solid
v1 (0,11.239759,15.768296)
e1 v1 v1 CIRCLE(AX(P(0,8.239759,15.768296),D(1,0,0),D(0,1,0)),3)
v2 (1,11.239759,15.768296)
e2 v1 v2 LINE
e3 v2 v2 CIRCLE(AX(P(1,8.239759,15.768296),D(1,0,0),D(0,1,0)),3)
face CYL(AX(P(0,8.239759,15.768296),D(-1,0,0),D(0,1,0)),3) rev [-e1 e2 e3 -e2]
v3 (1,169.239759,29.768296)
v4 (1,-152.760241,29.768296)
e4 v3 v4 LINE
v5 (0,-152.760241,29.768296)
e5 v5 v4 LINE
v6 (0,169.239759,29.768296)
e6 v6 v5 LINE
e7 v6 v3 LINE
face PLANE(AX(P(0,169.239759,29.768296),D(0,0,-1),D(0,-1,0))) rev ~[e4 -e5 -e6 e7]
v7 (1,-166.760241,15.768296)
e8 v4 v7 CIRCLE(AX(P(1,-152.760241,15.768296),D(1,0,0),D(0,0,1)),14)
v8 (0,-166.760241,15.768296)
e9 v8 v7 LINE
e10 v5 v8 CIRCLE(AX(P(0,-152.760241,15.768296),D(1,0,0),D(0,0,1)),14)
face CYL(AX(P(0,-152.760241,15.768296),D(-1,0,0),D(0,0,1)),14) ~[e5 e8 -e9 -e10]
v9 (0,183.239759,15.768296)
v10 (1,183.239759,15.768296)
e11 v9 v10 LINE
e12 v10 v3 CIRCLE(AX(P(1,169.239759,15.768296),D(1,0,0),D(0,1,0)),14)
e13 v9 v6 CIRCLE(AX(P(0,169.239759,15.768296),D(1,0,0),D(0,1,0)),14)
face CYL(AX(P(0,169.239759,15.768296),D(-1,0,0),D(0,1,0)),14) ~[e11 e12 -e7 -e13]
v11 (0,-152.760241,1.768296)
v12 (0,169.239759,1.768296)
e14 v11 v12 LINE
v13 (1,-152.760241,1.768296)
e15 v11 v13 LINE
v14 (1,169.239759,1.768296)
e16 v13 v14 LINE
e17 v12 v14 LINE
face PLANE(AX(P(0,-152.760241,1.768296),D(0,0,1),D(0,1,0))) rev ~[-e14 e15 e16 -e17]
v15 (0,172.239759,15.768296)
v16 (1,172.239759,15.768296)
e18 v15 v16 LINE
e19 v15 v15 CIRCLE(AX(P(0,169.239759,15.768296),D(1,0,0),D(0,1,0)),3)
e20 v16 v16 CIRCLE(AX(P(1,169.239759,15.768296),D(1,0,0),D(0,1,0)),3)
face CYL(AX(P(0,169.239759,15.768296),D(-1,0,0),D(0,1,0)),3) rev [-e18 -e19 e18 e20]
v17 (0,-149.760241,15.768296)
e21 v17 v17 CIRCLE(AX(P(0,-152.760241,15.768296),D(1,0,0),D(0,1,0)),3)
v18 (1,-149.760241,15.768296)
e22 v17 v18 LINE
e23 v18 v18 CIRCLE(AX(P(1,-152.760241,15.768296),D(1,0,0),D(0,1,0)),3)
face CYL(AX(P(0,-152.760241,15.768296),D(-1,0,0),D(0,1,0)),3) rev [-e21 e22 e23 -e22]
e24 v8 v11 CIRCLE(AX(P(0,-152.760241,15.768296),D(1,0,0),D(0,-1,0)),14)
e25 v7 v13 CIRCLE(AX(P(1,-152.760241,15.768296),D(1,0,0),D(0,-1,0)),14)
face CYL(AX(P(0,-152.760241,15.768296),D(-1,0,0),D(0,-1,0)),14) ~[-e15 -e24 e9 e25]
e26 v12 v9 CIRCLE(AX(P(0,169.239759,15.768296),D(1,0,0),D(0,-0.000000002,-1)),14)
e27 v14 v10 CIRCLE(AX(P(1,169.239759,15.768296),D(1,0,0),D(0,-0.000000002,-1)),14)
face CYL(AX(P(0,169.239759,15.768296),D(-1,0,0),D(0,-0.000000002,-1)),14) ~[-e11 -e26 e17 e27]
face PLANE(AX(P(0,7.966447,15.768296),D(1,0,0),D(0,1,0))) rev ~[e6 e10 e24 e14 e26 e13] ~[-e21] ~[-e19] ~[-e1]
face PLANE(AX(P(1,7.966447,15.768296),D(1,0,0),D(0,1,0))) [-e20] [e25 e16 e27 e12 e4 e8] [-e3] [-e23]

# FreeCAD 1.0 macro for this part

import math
import FreeCAD as App
import Part
import Sketcher

V = App.Vector
Q = App.Units.Quantity

doc = App.newDocument("Part")
body = doc.addObject("PartDesign::Body", "Body")

# Sketch on YZ plane
sketch1 = doc.addObject("Sketcher::SketchObject", "Sketch")
body.addObject(sketch1)
sketch1.AttachmentSupport = (doc.YZ_Plane, [""])
sketch1.MapMode = "FlatFace"
sketch1.addGeometry([
    Part.LineSegment(V(169.2, 29.8, 0), V(-152.8, 29.8, 0)),  # 0
    Part.ArcOfCircle(Part.Circle(V(-152.8, 15.8, 0), V(0, 0, 1), 14), math.radians(90), math.radians(180)),  # 1
    Part.ArcOfCircle(Part.Circle(V(-152.8, 15.8, 0), V(0, 0, 1), 14), math.radians(180), math.radians(270)),  # 2
    Part.LineSegment(V(-152.8, 1.8, 0), V(169.2, 1.8, 0)),  # 3
    Part.ArcOfCircle(Part.Circle(V(169.2, 15.8, 0), V(0, 0, 1), 14), math.radians(-90), math.radians(0)),  # 4
    Part.ArcOfCircle(Part.Circle(V(169.2, 15.8, 0), V(0, 0, 1), 14), math.radians(0), math.radians(90)),  # 5
    Part.Circle(V(-152.8, 15.8, 0), V(0, 0, 1), 3),  # 6
    Part.Circle(V(8.2, 15.8, 0), V(0, 0, 1), 3),  # 7
    Part.Circle(V(169.2, 15.8, 0), V(0, 0, 1), 3),  # 8
], False)
sketch1.addConstraint([
    Sketcher.Constraint("Tangent", 0, 2, 1, 1),
    Sketcher.Constraint("Tangent", 1, 2, 2, 1),
    Sketcher.Constraint("Tangent", 2, 2, 3, 1),
    Sketcher.Constraint("Tangent", 3, 2, 4, 1),
    Sketcher.Constraint("Tangent", 4, 2, 5, 1),
    Sketcher.Constraint("Tangent", 5, 2, 0, 1),
    Sketcher.Constraint("Horizontal", 0),
    Sketcher.Constraint("Horizontal", 3),
    Sketcher.Constraint("Coincident", 6, 3, 1, 3),
    Sketcher.Constraint("Coincident", 8, 3, 4, 3),
    Sketcher.Constraint("Equal", 1, 2),
    Sketcher.Constraint("Equal", 2, 4),
    Sketcher.Constraint("Equal", 6, 7),
    Sketcher.Constraint("Equal", 7, 8),
    Sketcher.Constraint("Horizontal", 6, 3, 7, 3),
    Sketcher.Constraint("Horizontal", 8, 3, 1, 2),
    Sketcher.Constraint("Horizontal", 1, 2, 4, 2),
    Sketcher.Constraint("Diameter", 6, Q("6 mm")),
    Sketcher.Constraint("Radius", 1, Q("14 mm")),
    Sketcher.Constraint("DistanceX", 0, 2, 0, 1, Q("322 mm")),
    Sketcher.Constraint("DistanceX", 1, 3, 7, 3, Q("161 mm")),
    Sketcher.Constraint("DistanceX", 1, 3, -1, 1, Q("152.760241 mm")),
    Sketcher.Constraint("DistanceY", -1, 1, 1, 3, Q("15.768296 mm")),
])
pad1 = doc.addObject("PartDesign::Pad", "Pad")
body.addObject(pad1)
pad1.Profile = sketch1
pad1.Length = 1

doc.recompute()
